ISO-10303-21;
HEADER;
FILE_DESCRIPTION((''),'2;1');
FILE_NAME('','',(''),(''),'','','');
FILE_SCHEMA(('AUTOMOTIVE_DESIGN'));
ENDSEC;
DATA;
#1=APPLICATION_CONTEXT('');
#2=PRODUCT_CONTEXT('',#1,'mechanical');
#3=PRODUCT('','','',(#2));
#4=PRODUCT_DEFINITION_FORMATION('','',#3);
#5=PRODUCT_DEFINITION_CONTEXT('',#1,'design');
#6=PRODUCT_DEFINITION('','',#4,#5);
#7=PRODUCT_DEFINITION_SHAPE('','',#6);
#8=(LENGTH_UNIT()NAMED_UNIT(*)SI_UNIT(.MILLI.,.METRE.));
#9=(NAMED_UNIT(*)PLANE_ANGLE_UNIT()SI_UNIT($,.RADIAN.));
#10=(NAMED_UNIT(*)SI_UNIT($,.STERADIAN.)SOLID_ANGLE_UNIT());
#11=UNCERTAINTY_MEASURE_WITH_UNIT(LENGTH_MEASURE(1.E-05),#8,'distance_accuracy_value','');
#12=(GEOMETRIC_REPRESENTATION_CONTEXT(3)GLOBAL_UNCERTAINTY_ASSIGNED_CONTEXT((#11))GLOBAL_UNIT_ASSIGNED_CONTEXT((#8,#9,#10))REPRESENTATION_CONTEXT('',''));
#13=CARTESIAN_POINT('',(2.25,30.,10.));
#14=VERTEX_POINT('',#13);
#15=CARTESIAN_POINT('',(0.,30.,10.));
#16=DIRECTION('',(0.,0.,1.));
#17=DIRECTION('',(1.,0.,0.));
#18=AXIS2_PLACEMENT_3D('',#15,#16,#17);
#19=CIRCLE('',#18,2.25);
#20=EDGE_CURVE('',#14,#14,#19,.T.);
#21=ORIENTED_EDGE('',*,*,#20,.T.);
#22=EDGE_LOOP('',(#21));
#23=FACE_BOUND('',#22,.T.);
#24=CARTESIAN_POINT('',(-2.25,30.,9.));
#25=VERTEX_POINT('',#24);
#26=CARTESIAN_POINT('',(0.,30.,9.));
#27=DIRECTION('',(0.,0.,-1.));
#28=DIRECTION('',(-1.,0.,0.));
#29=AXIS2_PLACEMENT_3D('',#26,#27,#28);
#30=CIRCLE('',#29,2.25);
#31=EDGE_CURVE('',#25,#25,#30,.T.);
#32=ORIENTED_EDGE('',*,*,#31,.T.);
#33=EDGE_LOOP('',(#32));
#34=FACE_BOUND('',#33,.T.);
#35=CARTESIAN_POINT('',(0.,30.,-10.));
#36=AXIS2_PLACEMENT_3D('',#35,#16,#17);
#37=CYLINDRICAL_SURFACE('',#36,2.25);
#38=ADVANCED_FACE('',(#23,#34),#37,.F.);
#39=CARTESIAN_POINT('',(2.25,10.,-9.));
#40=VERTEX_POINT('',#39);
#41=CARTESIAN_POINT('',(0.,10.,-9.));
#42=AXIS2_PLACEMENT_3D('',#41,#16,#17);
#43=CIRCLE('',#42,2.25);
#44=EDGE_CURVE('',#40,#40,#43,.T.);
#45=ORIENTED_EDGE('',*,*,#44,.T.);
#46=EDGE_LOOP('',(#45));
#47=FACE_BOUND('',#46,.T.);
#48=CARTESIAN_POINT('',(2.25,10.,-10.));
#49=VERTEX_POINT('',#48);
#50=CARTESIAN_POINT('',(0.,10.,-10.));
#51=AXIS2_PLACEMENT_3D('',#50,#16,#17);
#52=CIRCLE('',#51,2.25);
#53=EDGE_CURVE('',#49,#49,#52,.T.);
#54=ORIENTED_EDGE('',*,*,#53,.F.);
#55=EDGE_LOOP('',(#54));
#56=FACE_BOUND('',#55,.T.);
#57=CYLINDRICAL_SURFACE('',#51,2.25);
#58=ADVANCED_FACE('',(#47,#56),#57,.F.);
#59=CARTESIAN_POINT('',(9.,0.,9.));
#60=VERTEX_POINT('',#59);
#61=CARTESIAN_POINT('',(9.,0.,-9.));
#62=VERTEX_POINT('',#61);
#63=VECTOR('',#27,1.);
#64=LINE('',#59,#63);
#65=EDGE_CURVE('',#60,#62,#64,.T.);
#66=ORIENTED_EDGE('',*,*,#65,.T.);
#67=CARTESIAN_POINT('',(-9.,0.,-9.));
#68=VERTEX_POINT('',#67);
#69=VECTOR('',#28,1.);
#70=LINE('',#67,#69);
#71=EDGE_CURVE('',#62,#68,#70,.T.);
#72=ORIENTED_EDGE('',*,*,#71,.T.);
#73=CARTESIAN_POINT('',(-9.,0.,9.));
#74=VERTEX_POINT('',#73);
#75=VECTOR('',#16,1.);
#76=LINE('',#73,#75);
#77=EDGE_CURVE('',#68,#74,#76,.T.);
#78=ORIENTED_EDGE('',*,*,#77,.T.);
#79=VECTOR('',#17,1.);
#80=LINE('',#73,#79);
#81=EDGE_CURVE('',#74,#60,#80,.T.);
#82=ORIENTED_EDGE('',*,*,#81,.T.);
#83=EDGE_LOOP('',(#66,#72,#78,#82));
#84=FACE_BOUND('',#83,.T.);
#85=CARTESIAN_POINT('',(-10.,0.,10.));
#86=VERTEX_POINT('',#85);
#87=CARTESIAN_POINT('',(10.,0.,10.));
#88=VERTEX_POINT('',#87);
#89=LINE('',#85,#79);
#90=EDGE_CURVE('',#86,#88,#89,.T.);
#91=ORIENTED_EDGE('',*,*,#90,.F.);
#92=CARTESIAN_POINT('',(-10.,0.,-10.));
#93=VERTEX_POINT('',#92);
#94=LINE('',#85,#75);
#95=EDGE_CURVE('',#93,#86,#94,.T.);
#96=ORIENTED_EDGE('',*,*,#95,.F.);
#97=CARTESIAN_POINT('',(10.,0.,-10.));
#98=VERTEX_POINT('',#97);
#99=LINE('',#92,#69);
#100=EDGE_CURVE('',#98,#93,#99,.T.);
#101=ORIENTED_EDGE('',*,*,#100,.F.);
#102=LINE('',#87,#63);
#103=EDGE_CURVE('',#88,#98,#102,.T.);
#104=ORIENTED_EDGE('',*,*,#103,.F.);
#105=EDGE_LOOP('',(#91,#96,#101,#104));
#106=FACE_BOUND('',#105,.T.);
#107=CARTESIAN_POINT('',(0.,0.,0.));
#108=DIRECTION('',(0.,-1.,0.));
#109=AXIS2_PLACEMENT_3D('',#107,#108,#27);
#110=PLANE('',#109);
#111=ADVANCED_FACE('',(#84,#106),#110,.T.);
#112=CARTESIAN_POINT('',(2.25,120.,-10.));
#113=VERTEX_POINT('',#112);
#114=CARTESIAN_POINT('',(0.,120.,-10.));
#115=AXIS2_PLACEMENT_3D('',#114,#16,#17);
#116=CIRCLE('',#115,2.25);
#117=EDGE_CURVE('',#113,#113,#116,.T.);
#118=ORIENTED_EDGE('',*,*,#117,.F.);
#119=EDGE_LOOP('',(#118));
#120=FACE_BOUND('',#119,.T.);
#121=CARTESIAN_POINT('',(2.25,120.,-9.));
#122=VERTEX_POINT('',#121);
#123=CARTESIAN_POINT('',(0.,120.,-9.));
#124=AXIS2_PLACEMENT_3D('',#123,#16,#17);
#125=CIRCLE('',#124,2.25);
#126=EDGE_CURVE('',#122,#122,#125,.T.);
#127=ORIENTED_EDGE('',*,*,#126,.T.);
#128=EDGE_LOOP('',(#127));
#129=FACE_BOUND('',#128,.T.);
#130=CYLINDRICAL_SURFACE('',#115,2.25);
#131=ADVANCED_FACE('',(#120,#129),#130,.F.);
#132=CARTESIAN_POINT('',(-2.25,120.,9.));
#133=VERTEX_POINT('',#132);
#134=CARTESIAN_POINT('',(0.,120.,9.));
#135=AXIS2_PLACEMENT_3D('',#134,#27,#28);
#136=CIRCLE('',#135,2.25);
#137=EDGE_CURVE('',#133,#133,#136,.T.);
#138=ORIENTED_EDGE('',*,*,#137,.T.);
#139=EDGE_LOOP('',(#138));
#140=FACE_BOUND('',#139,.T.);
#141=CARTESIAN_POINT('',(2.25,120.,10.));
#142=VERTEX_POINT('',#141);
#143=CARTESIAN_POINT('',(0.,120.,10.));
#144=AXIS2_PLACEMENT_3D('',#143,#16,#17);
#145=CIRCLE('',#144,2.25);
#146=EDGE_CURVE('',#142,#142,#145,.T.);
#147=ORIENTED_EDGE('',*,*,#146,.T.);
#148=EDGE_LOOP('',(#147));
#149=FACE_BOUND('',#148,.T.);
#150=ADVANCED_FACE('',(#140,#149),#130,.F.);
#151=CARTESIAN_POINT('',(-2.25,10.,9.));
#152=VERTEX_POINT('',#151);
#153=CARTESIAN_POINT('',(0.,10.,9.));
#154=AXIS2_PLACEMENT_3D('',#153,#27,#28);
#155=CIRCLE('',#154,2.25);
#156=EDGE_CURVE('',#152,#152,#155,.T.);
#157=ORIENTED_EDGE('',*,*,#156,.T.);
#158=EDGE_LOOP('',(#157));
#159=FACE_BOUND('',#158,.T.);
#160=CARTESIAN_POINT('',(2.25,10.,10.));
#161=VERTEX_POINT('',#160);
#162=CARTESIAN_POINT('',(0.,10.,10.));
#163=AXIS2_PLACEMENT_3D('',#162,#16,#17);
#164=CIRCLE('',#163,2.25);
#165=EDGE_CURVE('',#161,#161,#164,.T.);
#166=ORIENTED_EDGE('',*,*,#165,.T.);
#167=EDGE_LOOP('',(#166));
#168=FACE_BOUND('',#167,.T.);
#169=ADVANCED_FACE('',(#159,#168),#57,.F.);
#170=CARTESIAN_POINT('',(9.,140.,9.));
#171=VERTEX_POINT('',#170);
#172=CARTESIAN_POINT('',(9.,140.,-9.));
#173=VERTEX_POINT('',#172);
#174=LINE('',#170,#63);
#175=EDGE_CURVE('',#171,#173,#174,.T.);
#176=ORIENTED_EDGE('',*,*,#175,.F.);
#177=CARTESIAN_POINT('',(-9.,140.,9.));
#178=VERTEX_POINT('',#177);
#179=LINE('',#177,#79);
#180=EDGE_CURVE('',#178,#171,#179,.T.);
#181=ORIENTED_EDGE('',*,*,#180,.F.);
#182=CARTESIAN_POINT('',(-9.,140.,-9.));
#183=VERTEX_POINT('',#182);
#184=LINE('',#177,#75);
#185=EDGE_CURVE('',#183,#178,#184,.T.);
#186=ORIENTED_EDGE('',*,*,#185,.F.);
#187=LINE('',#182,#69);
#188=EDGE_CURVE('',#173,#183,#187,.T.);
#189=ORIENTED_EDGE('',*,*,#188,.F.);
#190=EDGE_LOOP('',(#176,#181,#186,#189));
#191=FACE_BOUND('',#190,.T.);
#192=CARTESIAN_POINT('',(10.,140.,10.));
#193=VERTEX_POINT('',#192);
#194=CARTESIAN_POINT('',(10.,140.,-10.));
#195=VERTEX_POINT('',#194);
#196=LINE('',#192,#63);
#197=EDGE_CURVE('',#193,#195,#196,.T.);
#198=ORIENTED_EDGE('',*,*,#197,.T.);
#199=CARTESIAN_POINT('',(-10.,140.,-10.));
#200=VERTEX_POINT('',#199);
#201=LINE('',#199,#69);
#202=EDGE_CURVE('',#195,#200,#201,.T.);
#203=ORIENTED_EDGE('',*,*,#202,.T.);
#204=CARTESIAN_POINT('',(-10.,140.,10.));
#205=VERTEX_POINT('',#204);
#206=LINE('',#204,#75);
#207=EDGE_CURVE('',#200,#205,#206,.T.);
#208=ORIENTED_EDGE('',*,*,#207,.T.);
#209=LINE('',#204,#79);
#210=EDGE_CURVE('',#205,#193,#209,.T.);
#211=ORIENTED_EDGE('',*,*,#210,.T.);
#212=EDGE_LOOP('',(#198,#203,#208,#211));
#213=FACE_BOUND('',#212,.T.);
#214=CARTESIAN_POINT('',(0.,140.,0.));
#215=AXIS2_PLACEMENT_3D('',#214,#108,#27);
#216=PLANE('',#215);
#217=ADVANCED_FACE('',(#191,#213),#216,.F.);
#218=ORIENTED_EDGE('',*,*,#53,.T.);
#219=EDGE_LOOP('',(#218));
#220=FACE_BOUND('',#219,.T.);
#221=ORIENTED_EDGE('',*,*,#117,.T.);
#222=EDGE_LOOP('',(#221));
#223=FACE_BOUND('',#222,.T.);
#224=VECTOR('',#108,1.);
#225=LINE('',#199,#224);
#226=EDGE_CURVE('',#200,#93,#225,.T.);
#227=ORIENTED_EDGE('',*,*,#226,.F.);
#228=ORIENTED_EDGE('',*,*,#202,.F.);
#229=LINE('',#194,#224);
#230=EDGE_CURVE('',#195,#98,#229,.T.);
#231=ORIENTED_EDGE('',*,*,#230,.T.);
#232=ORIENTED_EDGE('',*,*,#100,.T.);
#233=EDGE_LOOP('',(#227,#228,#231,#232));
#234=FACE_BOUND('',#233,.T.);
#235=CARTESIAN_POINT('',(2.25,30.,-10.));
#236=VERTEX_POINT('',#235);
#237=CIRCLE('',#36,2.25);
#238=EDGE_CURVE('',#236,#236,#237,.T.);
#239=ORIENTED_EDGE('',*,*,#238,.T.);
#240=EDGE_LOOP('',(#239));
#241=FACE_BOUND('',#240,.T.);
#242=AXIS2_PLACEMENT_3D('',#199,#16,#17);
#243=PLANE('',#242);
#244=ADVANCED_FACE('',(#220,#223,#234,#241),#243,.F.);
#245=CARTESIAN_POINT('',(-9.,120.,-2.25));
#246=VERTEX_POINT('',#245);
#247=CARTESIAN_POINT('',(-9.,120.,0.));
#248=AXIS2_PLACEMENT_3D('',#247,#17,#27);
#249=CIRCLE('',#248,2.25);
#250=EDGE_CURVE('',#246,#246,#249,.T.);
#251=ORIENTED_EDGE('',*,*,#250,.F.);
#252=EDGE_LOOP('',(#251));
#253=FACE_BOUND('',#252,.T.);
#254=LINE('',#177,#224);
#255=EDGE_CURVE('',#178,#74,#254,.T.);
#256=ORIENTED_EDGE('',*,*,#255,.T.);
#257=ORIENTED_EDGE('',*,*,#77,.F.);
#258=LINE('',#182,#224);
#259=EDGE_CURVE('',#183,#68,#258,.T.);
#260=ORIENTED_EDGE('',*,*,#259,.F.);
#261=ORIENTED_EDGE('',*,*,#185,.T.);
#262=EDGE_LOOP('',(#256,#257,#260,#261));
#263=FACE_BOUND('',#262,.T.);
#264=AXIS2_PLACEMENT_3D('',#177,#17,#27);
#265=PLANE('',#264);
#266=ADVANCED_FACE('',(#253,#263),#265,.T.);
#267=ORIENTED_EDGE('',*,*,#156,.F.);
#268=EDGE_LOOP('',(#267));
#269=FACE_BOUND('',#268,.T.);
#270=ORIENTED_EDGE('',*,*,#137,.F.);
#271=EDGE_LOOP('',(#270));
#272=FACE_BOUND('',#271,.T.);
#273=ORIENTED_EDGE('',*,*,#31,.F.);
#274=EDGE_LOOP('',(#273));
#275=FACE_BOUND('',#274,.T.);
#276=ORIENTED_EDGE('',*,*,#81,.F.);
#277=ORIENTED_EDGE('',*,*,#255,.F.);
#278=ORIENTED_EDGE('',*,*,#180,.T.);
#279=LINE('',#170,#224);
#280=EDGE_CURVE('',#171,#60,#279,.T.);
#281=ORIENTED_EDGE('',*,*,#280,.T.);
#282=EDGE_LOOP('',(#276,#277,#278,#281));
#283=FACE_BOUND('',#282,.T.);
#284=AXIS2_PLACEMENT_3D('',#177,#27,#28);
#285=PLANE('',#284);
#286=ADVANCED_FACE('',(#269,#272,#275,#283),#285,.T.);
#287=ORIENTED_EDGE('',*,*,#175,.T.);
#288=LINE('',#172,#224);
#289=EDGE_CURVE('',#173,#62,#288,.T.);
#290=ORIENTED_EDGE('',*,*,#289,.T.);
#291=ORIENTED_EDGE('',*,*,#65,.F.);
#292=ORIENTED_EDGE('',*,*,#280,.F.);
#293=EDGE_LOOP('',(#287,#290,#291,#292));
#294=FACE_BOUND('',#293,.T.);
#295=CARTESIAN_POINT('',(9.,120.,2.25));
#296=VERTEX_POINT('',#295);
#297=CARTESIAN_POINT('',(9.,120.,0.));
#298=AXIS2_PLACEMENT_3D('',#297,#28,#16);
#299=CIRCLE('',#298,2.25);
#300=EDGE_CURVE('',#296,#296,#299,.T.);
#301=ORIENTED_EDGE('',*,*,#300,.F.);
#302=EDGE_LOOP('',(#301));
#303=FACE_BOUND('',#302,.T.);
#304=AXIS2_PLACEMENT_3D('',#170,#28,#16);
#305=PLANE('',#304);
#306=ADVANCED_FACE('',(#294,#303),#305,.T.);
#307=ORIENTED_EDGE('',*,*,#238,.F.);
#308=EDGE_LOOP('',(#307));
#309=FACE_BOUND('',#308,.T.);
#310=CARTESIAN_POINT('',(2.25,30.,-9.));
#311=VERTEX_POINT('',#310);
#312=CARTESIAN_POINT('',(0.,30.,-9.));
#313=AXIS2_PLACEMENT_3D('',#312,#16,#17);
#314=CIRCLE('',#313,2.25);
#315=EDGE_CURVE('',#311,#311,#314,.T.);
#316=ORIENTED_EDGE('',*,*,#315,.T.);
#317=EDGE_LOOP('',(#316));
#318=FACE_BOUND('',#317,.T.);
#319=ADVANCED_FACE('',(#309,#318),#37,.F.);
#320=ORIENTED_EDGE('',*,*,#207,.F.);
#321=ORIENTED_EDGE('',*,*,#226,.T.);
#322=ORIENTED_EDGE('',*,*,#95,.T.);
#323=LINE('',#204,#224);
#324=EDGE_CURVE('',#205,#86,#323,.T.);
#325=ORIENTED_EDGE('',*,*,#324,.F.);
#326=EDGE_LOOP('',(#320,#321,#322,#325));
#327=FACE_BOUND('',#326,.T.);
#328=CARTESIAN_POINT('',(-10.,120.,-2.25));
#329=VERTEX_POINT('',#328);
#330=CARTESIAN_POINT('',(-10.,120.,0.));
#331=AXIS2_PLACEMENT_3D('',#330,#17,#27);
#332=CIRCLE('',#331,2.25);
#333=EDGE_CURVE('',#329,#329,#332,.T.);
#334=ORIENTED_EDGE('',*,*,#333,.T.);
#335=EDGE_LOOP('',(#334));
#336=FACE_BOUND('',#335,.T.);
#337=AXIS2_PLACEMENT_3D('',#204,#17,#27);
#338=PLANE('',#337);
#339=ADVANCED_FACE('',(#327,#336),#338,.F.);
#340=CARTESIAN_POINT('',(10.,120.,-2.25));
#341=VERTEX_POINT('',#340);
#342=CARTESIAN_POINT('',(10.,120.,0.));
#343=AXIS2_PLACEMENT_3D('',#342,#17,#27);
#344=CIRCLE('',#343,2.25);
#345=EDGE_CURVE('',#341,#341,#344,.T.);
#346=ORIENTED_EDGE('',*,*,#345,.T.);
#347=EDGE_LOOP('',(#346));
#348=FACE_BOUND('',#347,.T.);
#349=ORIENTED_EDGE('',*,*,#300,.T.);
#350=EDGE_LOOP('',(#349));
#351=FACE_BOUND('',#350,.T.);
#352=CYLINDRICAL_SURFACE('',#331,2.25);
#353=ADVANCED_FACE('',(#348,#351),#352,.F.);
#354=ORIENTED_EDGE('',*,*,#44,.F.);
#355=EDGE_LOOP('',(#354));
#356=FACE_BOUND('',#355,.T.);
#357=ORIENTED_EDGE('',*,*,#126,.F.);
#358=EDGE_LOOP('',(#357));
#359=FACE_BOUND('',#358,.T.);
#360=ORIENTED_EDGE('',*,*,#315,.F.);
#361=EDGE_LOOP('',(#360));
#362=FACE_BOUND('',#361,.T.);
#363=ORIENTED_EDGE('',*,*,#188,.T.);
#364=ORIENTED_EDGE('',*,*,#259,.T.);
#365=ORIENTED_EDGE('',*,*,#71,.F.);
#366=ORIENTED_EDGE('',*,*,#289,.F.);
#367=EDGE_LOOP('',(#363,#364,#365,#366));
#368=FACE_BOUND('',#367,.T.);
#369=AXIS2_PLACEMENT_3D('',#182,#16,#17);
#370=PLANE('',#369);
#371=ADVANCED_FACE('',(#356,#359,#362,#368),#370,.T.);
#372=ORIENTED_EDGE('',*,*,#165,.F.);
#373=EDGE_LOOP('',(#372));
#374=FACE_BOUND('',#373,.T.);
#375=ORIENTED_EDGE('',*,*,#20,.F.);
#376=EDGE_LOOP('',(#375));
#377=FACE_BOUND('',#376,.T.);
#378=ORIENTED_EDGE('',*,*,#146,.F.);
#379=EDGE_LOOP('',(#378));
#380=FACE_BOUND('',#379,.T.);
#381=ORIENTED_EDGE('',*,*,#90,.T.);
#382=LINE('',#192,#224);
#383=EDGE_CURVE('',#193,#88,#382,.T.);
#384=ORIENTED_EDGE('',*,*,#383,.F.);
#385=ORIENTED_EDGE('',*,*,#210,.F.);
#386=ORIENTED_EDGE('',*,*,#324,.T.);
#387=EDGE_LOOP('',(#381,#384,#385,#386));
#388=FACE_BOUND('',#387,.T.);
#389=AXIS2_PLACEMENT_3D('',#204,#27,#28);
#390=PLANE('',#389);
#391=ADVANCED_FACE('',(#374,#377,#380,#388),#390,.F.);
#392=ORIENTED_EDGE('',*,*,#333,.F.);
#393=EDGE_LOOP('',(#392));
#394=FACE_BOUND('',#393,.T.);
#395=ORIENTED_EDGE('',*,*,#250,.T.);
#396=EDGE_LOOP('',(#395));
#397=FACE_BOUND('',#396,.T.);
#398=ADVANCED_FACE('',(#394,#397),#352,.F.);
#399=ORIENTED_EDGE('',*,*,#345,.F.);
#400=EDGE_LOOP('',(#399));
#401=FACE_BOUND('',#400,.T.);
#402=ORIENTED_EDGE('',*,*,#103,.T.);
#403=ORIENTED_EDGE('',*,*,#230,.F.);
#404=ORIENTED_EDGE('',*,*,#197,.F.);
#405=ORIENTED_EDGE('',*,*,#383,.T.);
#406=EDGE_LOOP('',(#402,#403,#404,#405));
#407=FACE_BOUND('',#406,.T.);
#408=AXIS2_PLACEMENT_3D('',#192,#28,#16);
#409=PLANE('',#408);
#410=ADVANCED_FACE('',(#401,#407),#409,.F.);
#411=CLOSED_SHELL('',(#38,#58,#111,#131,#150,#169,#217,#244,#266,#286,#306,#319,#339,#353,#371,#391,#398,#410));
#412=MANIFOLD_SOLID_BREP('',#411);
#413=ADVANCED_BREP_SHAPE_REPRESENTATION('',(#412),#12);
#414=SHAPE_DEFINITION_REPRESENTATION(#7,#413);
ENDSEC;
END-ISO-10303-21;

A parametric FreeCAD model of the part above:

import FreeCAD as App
import Part
import Sketcher

V = App.Vector


def add_polygon(sketch, points):
    """Adds a closed chain of lines whose ends are joined by coincident constraints."""
    first, n = sketch.GeometryCount, len(points)
    for a, b in zip(points, points[1:] + points[:1]):
        sketch.addGeometry(Part.LineSegment(App.Vector(*a, 0), App.Vector(*b, 0)), False)
    for i in range(n):
        sketch.addConstraint(Sketcher.Constraint("Coincident", first + i, 2, first + (i + 1) % n, 1))

doc = App.newDocument("Part")
params = doc.addObject("Spreadsheet::Sheet", "Params")
for row, (alias, value) in enumerate([
    ("sketch1_width", "20 mm"),
    ("sketch1_width2", "18 mm"),
    ("pad1_length", "140 mm"),
    ("sketch2_diameter", "4.5 mm"),
    ("sketch3_diameter", "4.5 mm"),
], start=1):
    params.set(f"A{row}", alias)
    params.set(f"B{row}", "=" + value)
    params.setAlias(f"B{row}", alias)

body = doc.addObject("PartDesign::Body", "Body")

# Sketch on XZ plane
sketch1 = body.newObject("Sketcher::SketchObject", "Sketch")
sketch1.AttachmentSupport = (doc.getObject("XZ_Plane"), [""])
sketch1.MapMode = "FlatFace"
add_polygon(sketch1, [(-10, -10), (-10, 10), (10, 10), (10, -10)])  # lines 0-3
add_polygon(sketch1, [(9, 9), (-9, 9), (-9, -9), (9, -9)])  # lines 4-7
sketch1.addConstraint([
    Sketcher.Constraint("Vertical", 0),
    Sketcher.Constraint("Horizontal", 1),
    Sketcher.Constraint("Vertical", 2),
    Sketcher.Constraint("Horizontal", 3),
    Sketcher.Constraint("Horizontal", 4),
    Sketcher.Constraint("Vertical", 5),
    Sketcher.Constraint("Horizontal", 6),
    Sketcher.Constraint("Vertical", 7),
    Sketcher.Constraint("Symmetric", 0, 2, 2, 2, -1, 1),
    Sketcher.Constraint("Symmetric", 4, 2, 6, 2, -1, 1),
    Sketcher.Constraint("Equal", 3, 0),
    Sketcher.Constraint("Equal", 6, 5),
    Sketcher.Constraint("DistanceX", 1, 1, 1, 2, 20.0),
    Sketcher.Constraint("DistanceX", 4, 2, 4, 1, 18.0),
])
sketch1.setExpression("Constraints[20]", "Params.sketch1_width")
sketch1.setExpression("Constraints[21]", "Params.sketch1_width2")
pad1 = body.newObject("PartDesign::Pad", "Pad")
pad1.Profile = sketch1
pad1.setExpression("Length", "Params.pad1_length")
pad1.Reversed = True

# Sketch on XY plane
sketch2 = body.newObject("Sketcher::SketchObject", "Sketch001")
sketch2.AttachmentSupport = (doc.getObject("XY_Plane"), [""])
sketch2.MapMode = "FlatFace"
sketch2.AttachmentOffset = App.Placement(V(0, 0, 10), App.Rotation())
sketch2.addGeometry([
    Part.Circle(V(0, 10, 0), V(0, 0, 1), 2.25),
    Part.Circle(V(0, 30, 0), V(0, 0, 1), 2.25),
    Part.Circle(V(0, 120, 0), V(0, 0, 1), 2.25),
], False)
sketch2.addConstraint([
    Sketcher.Constraint("Equal", 0, 1),
    Sketcher.Constraint("Equal", 1, 2),
    Sketcher.Constraint("PointOnObject", 0, 3, -2),
    Sketcher.Constraint("PointOnObject", 1, 3, -2),
    Sketcher.Constraint("PointOnObject", 2, 3, -2),
    Sketcher.Constraint("Diameter", 0, 4.5),
    Sketcher.Constraint("DistanceY", -1, 1, 0, 3, 10.0),
    Sketcher.Constraint("DistanceY", -1, 1, 1, 3, 30.0),
    Sketcher.Constraint("DistanceY", -1, 1, 2, 3, 120.0),
])
sketch2.setExpression("Constraints[5]", "Params.sketch2_diameter")
pocket1 = body.newObject("PartDesign::Pocket", "Pocket")
pocket1.Profile = sketch2
pocket1.Type = "ThroughAll"

# Sketch on YZ plane
sketch3 = body.newObject("Sketcher::SketchObject", "Sketch002")
sketch3.AttachmentSupport = (doc.getObject("YZ_Plane"), [""])
sketch3.MapMode = "FlatFace"
sketch3.AttachmentOffset = App.Placement(V(0, 0, 10), App.Rotation())
sketch3.addGeometry(Part.Circle(V(120, 0, 0), V(0, 0, 1), 2.25), False)
sketch3.addConstraint([
    Sketcher.Constraint("PointOnObject", 0, 3, -1),
    Sketcher.Constraint("Diameter", 0, 4.5),
    Sketcher.Constraint("DistanceX", -1, 1, 0, 3, 120.0),
])
sketch3.setExpression("Constraints[1]", "Params.sketch3_diameter")
pocket2 = body.newObject("PartDesign::Pocket", "Pocket001")
pocket2.Profile = sketch3
pocket2.Type = "ThroughAll"

doc.recompute()
